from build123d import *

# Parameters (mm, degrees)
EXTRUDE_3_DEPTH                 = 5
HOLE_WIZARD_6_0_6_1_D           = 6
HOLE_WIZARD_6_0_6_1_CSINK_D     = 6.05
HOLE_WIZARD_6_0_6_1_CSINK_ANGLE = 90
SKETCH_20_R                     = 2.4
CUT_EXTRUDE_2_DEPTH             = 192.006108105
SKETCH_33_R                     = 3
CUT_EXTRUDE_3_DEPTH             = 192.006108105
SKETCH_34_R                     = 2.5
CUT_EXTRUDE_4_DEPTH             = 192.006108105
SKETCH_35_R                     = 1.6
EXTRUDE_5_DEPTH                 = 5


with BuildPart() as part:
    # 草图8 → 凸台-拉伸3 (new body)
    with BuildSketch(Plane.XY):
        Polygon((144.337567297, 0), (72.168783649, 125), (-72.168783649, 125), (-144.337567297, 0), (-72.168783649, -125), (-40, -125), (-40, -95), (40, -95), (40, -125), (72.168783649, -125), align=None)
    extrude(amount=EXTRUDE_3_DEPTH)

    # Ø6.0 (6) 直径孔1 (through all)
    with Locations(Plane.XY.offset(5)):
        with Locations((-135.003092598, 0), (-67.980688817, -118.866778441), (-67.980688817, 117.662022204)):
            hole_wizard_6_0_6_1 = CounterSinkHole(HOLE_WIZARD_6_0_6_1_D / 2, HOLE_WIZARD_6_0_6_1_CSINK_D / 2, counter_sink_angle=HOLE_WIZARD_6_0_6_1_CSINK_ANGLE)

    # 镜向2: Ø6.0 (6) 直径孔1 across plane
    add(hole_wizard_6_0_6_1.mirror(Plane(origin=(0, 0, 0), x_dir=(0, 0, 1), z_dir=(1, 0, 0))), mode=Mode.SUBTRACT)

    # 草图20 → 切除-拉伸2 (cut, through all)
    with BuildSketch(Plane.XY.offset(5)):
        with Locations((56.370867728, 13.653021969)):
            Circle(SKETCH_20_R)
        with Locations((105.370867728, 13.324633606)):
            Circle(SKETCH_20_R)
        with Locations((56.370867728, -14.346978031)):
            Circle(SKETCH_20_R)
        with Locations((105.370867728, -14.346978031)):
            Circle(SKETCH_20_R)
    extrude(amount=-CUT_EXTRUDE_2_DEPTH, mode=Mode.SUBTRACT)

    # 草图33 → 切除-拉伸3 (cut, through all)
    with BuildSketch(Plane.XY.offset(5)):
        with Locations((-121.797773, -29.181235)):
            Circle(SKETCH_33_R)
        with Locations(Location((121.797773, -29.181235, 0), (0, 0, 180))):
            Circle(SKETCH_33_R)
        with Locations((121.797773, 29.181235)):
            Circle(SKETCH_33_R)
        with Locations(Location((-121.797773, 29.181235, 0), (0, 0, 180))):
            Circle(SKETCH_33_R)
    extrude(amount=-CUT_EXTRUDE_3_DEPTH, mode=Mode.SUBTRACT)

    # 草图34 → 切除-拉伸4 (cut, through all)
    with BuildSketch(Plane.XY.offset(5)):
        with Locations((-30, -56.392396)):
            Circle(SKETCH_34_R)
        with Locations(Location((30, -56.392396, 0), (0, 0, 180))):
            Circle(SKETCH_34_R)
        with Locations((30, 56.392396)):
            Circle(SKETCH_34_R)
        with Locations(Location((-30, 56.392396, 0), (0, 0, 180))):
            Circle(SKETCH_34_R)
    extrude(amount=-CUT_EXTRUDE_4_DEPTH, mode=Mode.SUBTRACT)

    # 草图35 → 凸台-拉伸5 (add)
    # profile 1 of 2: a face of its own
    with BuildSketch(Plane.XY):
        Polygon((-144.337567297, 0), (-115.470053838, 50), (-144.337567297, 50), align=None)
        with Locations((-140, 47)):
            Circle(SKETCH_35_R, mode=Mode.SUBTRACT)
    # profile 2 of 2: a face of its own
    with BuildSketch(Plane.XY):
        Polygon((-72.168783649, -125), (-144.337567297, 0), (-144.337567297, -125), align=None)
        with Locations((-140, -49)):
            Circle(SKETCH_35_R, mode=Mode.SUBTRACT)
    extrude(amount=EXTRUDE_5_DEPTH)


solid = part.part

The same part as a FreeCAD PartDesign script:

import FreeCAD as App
import Part
import Sketcher
Q = App.Units.Quantity


def add_polygon(sketch, points):
    """Adds a closed chain of lines whose ends are joined by coincident constraints."""
    first, n = sketch.GeometryCount, len(points)
    for a, b in zip(points, points[1:] + points[:1]):
        sketch.addGeometry(Part.LineSegment(App.Vector(*a, 0), App.Vector(*b, 0)), False)
    for i in range(n):
        sketch.addConstraint(Sketcher.Constraint("Coincident", first + i, 2, first + (i + 1) % n, 1))

doc = App.newDocument("Part")
body = doc.addObject("PartDesign::Body", "Body")

# Sketch on XY plane
sketch1 = body.newObject("Sketcher::SketchObject", "Sketch")
sketch1.AttachmentSupport = (doc.getObject("XY_Plane"), [""])
sketch1.MapMode = "FlatFace"
add_polygon(sketch1, [(144.337567, 0), (72.168784, 125), (-72.168784, 125), (-144.337567, 0), (-72.168784, -125), (-40, -125), (-40, -95), (40, -95), (40, -125), (72.168784, -125)])  # lines 0-9
sketch1.addConstraint(Sketcher.Constraint("Horizontal", 1))
sketch1.addConstraint(Sketcher.Constraint("Horizontal", 4))
sketch1.addConstraint(Sketcher.Constraint("Vertical", 5))
sketch1.addConstraint(Sketcher.Constraint("Horizontal", 6))
sketch1.addConstraint(Sketcher.Constraint("Vertical", 7))
sketch1.addConstraint(Sketcher.Constraint("Horizontal", 8))
sketch1.addConstraint(Sketcher.Constraint("Symmetric", 0, 2, 3, 2, -1, 1))
sketch1.addConstraint(Sketcher.Constraint("Symmetric", 1, 2, 8, 2, -1, 1))
sketch1.addConstraint(Sketcher.Constraint("Symmetric", 2, 2, 9, 2, -1, 1))
sketch1.addConstraint(Sketcher.Constraint("PointOnObject", 2, 2, -1))
sketch1.addConstraint(Sketcher.Constraint("Vertical", 1, 2, 3, 2))
sketch1.addConstraint(Sketcher.Constraint("Equal", 4, 8))
sketch1.addConstraint(Sketcher.Constraint("DistanceX", 6, 1, 6, 2, 80.0))
sketch1.addConstraint(Sketcher.Constraint("DistanceY", 5, 1, 5, 2, 30.0))
sketch1.addConstraint(Sketcher.Constraint("Angle", 0, Q("120 deg")))
sketch1.addConstraint(Sketcher.Constraint("DistanceY", -1, 1, 0, 2, 125.0))
sketch1.addConstraint(Sketcher.Constraint("DistanceX", 1, 2, 1, 1, 144.337567))
pad1 = body.newObject("PartDesign::Pad", "Pad")
pad1.Profile = sketch1
pad1.Length = 5

# Sketch on XY plane
sketch2 = body.newObject("Sketcher::SketchObject", "Sketch001")
sketch2.AttachmentSupport = (doc.getObject("XY_Plane"), [""])
sketch2.MapMode = "FlatFace"
sketch2.AttachmentOffset = App.Placement(App.Vector(0, 0, 5), App.Rotation())
sketch2.addGeometry(Part.Circle(App.Vector(-135.003093, 0, 0), App.Vector(0, 0, 1), 3), False)
sketch2.addGeometry(Part.Circle(App.Vector(-67.980689, -118.866778, 0), App.Vector(0, 0, 1), 3), False)
sketch2.addGeometry(Part.Circle(App.Vector(-67.980689, 117.662022, 0), App.Vector(0, 0, 1), 3), False)
sketch2.addConstraint(Sketcher.Constraint("Equal", 0, 1))
sketch2.addConstraint(Sketcher.Constraint("Equal", 1, 2))
sketch2.addConstraint(Sketcher.Constraint("PointOnObject", 0, 3, -1))
sketch2.addConstraint(Sketcher.Constraint("Vertical", 1, 3, 2, 3))
sketch2.addConstraint(Sketcher.Constraint("Diameter", 0, 6.0))
sketch2.addConstraint(Sketcher.Constraint("DistanceY", 1, 3, 2, 3, 236.528801))
sketch2.addConstraint(Sketcher.Constraint("DistanceX", 1, 3, -1, 1, 67.980689))
sketch2.addConstraint(Sketcher.Constraint("DistanceY", 1, 3, -1, 1, 118.866778))
sketch2.addConstraint(Sketcher.Constraint("DistanceX", 0, 3, -1, 1, 135.003093))
doc.recompute()
hole = body.newObject("PartDesign::Hole", "Hole")
hole.Profile = sketch2
hole.ThreadType = "None"
hole.Diameter = 6
hole.DepthType = "ThroughAll"
hole.HoleCutType = "Countersink"
hole.HoleCutDiameter = 6.05
hole.HoleCutCountersinkAngle = 90
doc.recompute()

mirrored = body.newObject("PartDesign::Mirrored", "Mirrored")
mirrored.Originals = [hole]
mirrored.MirrorPlane = (doc.getObject("YZ_Plane"), [""])
body.Tip = mirrored

# Sketch on XY plane
sketch3 = body.newObject("Sketcher::SketchObject", "Sketch002")
sketch3.AttachmentSupport = (doc.getObject("XY_Plane"), [""])
sketch3.MapMode = "FlatFace"
sketch3.AttachmentOffset = App.Placement(App.Vector(0, 0, 5), App.Rotation())
sketch3.addGeometry(Part.Circle(App.Vector(56.370868, 13.653022, 0), App.Vector(0, 0, 1), 2.4), False)
sketch3.addGeometry(Part.Circle(App.Vector(105.370868, 13.324634, 0), App.Vector(0, 0, 1), 2.4), False)
sketch3.addGeometry(Part.Circle(App.Vector(56.370868, -14.346978, 0), App.Vector(0, 0, 1), 2.4), False)
sketch3.addGeometry(Part.Circle(App.Vector(105.370868, -14.346978, 0), App.Vector(0, 0, 1), 2.4), False)
sketch3.addConstraint(Sketcher.Constraint("Equal", 0, 1))
sketch3.addConstraint(Sketcher.Constraint("Equal", 1, 2))
sketch3.addConstraint(Sketcher.Constraint("Equal", 2, 3))
sketch3.addConstraint(Sketcher.Constraint("Horizontal", 2, 3, 3, 3))
sketch3.addConstraint(Sketcher.Constraint("Vertical", 0, 3, 2, 3))
sketch3.addConstraint(Sketcher.Constraint("Vertical", 1, 3, 3, 3))
sketch3.addConstraint(Sketcher.Constraint("Diameter", 0, 4.8))
sketch3.addConstraint(Sketcher.Constraint("DistanceX", 0, 3, 1, 3, 49.0))
sketch3.addConstraint(Sketcher.Constraint("DistanceY", 2, 3, 0, 3, 28.0))
sketch3.addConstraint(Sketcher.Constraint("DistanceY", -1, 1, 0, 3, 13.653022))
sketch3.addConstraint(Sketcher.Constraint("DistanceY", 1, 3, 0, 3, 0.328388))
sketch3.addConstraint(Sketcher.Constraint("DistanceX", -1, 1, 0, 3, 56.370868))
pocket1 = body.newObject("PartDesign::Pocket", "Pocket")
pocket1.Profile = sketch3
pocket1.Type = "ThroughAll"

# Sketch on XY plane
sketch4 = body.newObject("Sketcher::SketchObject", "Sketch003")
sketch4.AttachmentSupport = (doc.getObject("XY_Plane"), [""])
sketch4.MapMode = "FlatFace"
sketch4.AttachmentOffset = App.Placement(App.Vector(0, 0, 5), App.Rotation())
sketch4.addGeometry(Part.Circle(App.Vector(-121.797773, -29.181235, 0), App.Vector(0, 0, 1), 3), False)
sketch4.addGeometry(Part.Circle(App.Vector(121.797773, -29.181235, 0), App.Vector(0, 0, 1), 3), False)
sketch4.addGeometry(Part.Circle(App.Vector(121.797773, 29.181235, 0), App.Vector(0, 0, 1), 3), False)
sketch4.addGeometry(Part.Circle(App.Vector(-121.797773, 29.181235, 0), App.Vector(0, 0, 1), 3), False)
sketch4.addConstraint(Sketcher.Constraint("Equal", 0, 1))
sketch4.addConstraint(Sketcher.Constraint("Equal", 1, 2))
sketch4.addConstraint(Sketcher.Constraint("Equal", 2, 3))
sketch4.addConstraint(Sketcher.Constraint("Symmetric", 0, 3, 2, 3, -1, 1))
sketch4.addConstraint(Sketcher.Constraint("Symmetric", 1, 3, 3, 3, -1, 1))
sketch4.addConstraint(Sketcher.Constraint("Symmetric", 0, 3, 1, 3, -2))
sketch4.addConstraint(Sketcher.Constraint("Diameter", 0, 6.0))
sketch4.addConstraint(Sketcher.Constraint("DistanceY", 1, 3, 2, 3, 58.36247))
sketch4.addConstraint(Sketcher.Constraint("DistanceX", 0, 3, -1, 1, 121.797773))
pocket2 = body.newObject("PartDesign::Pocket", "Pocket001")
pocket2.Profile = sketch4
pocket2.Type = "ThroughAll"

# Sketch on XY plane
sketch5 = body.newObject("Sketcher::SketchObject", "Sketch004")
sketch5.AttachmentSupport = (doc.getObject("XY_Plane"), [""])
sketch5.MapMode = "FlatFace"
sketch5.AttachmentOffset = App.Placement(App.Vector(0, 0, 5), App.Rotation())
sketch5.addGeometry(Part.Circle(App.Vector(-30, -56.392396, 0), App.Vector(0, 0, 1), 2.5), False)
sketch5.addGeometry(Part.Circle(App.Vector(30, -56.392396, 0), App.Vector(0, 0, 1), 2.5), False)
sketch5.addGeometry(Part.Circle(App.Vector(30, 56.392396, 0), App.Vector(0, 0, 1), 2.5), False)
sketch5.addGeometry(Part.Circle(App.Vector(-30, 56.392396, 0), App.Vector(0, 0, 1), 2.5), False)
sketch5.addConstraint(Sketcher.Constraint("Equal", 0, 1))
sketch5.addConstraint(Sketcher.Constraint("Equal", 1, 2))
sketch5.addConstraint(Sketcher.Constraint("Equal", 2, 3))
sketch5.addConstraint(Sketcher.Constraint("Symmetric", 0, 3, 2, 3, -1, 1))
sketch5.addConstraint(Sketcher.Constraint("Symmetric", 1, 3, 3, 3, -1, 1))
sketch5.addConstraint(Sketcher.Constraint("Symmetric", 0, 3, 1, 3, -2))
sketch5.addConstraint(Sketcher.Constraint("Diameter", 0, 5.0))
sketch5.addConstraint(Sketcher.Constraint("DistanceX", 0, 3, -1, 1, 30.0))
sketch5.addConstraint(Sketcher.Constraint("DistanceY", 1, 3, 2, 3, 112.784792))
pocket3 = body.newObject("PartDesign::Pocket", "Pocket002")
pocket3.Profile = sketch5
pocket3.Type = "ThroughAll"

# Sketch on XY plane
sketch6 = body.newObject("Sketcher::SketchObject", "Sketch005")
sketch6.AttachmentSupport = (doc.getObject("XY_Plane"), [""])
sketch6.MapMode = "FlatFace"
add_polygon(sketch6, [(-144.337567, 0), (-115.470054, 50), (-144.337567, 50)])  # lines 0-2
sketch6.addGeometry(Part.Circle(App.Vector(-140, 47, 0), App.Vector(0, 0, 1), 1.6), False)  # 3
add_polygon(sketch6, [(-72.168784, -125), (-144.337567, 0), (-144.337567, -125)])  # lines 4-6
sketch6.addGeometry(Part.Circle(App.Vector(-140, -49, 0), App.Vector(0, 0, 1), 1.6), False)  # 7
sketch6.addConstraint(Sketcher.Constraint("Horizontal", 1))
sketch6.addConstraint(Sketcher.Constraint("Vertical", 2))
sketch6.addConstraint(Sketcher.Constraint("Vertical", 5))
sketch6.addConstraint(Sketcher.Constraint("Horizontal", 6))
sketch6.addConstraint(Sketcher.Constraint("Coincident", 4, 2, 2, 2))
sketch6.addConstraint(Sketcher.Constraint("Equal", 3, 7))
sketch6.addConstraint(Sketcher.Constraint("PointOnObject", 2, 2, -1))
sketch6.addConstraint(Sketcher.Constraint("Vertical", 3, 3, 7, 3))
sketch6.addConstraint(Sketcher.Constraint("Diameter", 3, 3.2))
sketch6.addConstraint(Sketcher.Constraint("DistanceY", 2, 2, 2, 1, 50.0))
sketch6.addConstraint(Sketcher.Constraint("DistanceY", 5, 2, 5, 1, 125.0))
sketch6.addConstraint(Sketcher.Constraint("Angle", 0, Q("60 deg")))
sketch6.addConstraint(Sketcher.Constraint("Angle", 4, Q("120 deg")))
sketch6.addConstraint(Sketcher.Constraint("DistanceX", 3, 3, -1, 1, 140.0))
sketch6.addConstraint(Sketcher.Constraint("DistanceY", -1, 1, 3, 3, 47.0))
sketch6.addConstraint(Sketcher.Constraint("DistanceY", 7, 3, -1, 1, 49.0))
sketch6.addConstraint(Sketcher.Constraint("DistanceX", 0, 2, -1, 1, 115.470054))
pad2 = body.newObject("PartDesign::Pad", "Pad001")
pad2.Profile = sketch6
pad2.Length = 5

doc.recompute()
